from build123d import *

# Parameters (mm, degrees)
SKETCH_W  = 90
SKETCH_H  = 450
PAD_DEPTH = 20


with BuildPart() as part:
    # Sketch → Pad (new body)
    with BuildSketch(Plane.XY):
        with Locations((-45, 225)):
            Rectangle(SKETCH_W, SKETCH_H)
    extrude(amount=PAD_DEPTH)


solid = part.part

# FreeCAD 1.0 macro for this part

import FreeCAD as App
import Part
import Sketcher
from FreeCAD import Vector

doc = App.newDocument("Part")
body = doc.addObject("PartDesign::Body", "Body")

# Sketch on XY plane
sketch1 = body.newObject("Sketcher::SketchObject", "Sketch")
sketch1.AttachmentSupport = (doc.getObject("XY_Plane"), [""])
sketch1.MapMode = "FlatFace"
sketch1.addGeometry([
    Part.LineSegment(Vector(-90, 450, 0), Vector(-90, 0, 0)),
    Part.LineSegment(Vector(-90, 0, 0), Vector(0, 0, 0)),
    Part.LineSegment(Vector(0, 0, 0), Vector(0, 450, 0)),
    Part.LineSegment(Vector(0, 450, 0), Vector(-90, 450, 0)),
], False)
sketch1.addConstraint([
    Sketcher.Constraint("Coincident", 0, 2, 1, 1),
    Sketcher.Constraint("Coincident", 1, 2, 2, 1),
    Sketcher.Constraint("Coincident", 2, 2, 3, 1),
    Sketcher.Constraint("Coincident", 3, 2, 0, 1),
    Sketcher.Constraint("Vertical", 0),
    Sketcher.Constraint("Horizontal", 1),
    Sketcher.Constraint("Vertical", 2),
    Sketcher.Constraint("Horizontal", 3),
    Sketcher.Constraint("Coincident", 1, 2, -1, 1),
    Sketcher.Constraint("DistanceX", 1, 1, 1, 2, 90.0),
    Sketcher.Constraint("DistanceY", 0, 2, 0, 1, 450.0),
])
pad1 = body.newObject("PartDesign::Pad", "Pad")
pad1.Profile = sketch1
pad1.Length = 20

doc.recompute()
